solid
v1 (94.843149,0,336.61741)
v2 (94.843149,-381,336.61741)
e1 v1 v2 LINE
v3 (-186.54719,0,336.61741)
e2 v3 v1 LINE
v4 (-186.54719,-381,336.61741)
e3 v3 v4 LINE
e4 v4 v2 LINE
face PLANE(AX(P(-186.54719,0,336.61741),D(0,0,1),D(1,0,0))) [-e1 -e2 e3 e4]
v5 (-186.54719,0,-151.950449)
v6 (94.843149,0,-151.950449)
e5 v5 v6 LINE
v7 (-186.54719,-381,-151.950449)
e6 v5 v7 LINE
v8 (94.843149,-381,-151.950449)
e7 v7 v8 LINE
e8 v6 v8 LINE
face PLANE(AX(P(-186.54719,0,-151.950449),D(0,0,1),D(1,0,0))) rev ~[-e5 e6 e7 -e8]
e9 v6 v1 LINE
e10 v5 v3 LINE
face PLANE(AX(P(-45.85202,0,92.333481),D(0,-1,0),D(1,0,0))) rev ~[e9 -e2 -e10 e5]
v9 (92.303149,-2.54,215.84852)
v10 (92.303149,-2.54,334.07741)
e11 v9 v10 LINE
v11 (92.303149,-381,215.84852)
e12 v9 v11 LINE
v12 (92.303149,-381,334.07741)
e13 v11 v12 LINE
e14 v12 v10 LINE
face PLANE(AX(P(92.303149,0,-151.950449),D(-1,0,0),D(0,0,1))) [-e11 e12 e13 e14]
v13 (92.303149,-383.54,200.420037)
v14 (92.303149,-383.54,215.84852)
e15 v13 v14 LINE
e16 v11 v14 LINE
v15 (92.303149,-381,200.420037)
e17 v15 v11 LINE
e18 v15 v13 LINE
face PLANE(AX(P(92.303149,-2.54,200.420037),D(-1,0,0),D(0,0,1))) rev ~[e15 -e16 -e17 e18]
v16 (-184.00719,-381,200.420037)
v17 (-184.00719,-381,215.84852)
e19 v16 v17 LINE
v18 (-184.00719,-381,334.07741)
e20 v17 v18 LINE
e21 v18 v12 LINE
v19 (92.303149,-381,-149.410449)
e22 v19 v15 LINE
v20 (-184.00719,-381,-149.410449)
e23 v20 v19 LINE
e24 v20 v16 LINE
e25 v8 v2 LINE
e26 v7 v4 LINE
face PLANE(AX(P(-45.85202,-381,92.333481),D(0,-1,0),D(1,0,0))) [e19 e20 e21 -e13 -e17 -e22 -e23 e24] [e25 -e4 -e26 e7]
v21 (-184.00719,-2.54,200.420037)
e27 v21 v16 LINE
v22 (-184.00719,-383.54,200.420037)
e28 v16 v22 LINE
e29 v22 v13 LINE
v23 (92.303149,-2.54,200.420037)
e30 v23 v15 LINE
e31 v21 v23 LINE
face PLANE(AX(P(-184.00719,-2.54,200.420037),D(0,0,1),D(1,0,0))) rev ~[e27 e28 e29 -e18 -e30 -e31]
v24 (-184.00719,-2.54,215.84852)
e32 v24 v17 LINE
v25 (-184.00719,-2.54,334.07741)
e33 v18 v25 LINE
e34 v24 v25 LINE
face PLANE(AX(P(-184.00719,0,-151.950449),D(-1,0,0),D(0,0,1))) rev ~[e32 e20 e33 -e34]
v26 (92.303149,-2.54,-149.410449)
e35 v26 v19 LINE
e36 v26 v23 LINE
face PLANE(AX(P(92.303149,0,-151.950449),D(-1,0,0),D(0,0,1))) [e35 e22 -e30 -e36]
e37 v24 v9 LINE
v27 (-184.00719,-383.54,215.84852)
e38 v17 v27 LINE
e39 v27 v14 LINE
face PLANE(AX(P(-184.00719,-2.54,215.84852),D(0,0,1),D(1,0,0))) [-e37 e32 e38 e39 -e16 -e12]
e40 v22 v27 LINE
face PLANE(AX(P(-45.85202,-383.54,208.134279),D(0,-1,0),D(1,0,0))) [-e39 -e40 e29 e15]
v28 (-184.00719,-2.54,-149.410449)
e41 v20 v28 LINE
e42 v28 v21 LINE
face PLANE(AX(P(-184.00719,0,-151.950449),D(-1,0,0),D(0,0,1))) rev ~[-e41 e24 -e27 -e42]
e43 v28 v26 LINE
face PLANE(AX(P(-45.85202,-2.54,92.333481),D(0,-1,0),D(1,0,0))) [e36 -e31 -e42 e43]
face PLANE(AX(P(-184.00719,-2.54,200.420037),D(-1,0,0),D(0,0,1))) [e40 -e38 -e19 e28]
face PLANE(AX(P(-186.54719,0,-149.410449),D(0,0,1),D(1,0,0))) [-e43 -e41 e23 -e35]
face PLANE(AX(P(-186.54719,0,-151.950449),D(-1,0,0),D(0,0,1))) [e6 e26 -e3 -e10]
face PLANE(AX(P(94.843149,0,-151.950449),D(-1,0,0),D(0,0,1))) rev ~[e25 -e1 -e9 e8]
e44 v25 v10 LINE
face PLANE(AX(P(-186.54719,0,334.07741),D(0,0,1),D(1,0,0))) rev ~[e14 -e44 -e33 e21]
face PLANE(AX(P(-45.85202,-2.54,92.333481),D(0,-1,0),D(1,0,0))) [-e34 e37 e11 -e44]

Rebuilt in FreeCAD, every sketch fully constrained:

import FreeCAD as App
import Part
import Sketcher
from FreeCAD import Vector
Q = App.Units.Quantity


def faces_at(feature, points):
    """Names of the faces that lie closest to the given points."""
    faces = feature.Shape.Faces
    near = lambda p: min(range(len(faces)), key=lambda i: faces[i].distToShape(Part.Vertex(*p))[0])
    return sorted({f"Face{near(p) + 1}" for p in points})


def add_polygon(sketch, points):
    """Adds a closed chain of lines whose ends are joined by coincident constraints."""
    first, n = sketch.GeometryCount, len(points)
    for a, b in zip(points, points[1:] + points[:1]):
        sketch.addGeometry(Part.LineSegment(App.Vector(*a, 0), App.Vector(*b, 0)), False)
    for i in range(n):
        sketch.addConstraint(Sketcher.Constraint("Coincident", first + i, 2, first + (i + 1) % n, 1))

doc = App.newDocument("Part")
body = doc.addObject("PartDesign::Body", "Body")

# Sketch on XZ plane
sketch1 = body.newObject("Sketcher::SketchObject", "Sketch")
sketch1.AttachmentSupport = (doc.getObject("XZ_Plane"), [""])
sketch1.MapMode = "FlatFace"
add_polygon(sketch1, [(-187, 337), (-187, -152), (95, -152), (95, 337)])  # lines 0-3
sketch1.addConstraint([
    Sketcher.Constraint("Vertical", 0),
    Sketcher.Constraint("Horizontal", 1),
    Sketcher.Constraint("Vertical", 2),
    Sketcher.Constraint("Horizontal", 3),
    Sketcher.Constraint("DistanceX", 1, 1, 1, 2, 281.390339),
    Sketcher.Constraint("DistanceY", 0, 2, 0, 1, 488.567859),
    Sketcher.Constraint("DistanceX", 0, 2, -1, 1, 186.54719),
    Sketcher.Constraint("DistanceY", 0, 2, -1, 1, 151.950449),
])
pad1 = body.newObject("PartDesign::Pad", "Pad")
pad1.Profile = sketch1
pad1.Length = Q("15 in")
doc.recompute()

thickness = body.newObject("PartDesign::Thickness", "Thickness")
thickness.Base = (pad1, faces_at(pad1, [(-45.852, -381, 92.333)]))
thickness.Value = Q("0.1 in")
thickness.Reversed = True
thickness.Join = "Arc"

# Sketch on XZ plane
sketch2 = body.newObject("Sketcher::SketchObject", "Sketch001")
sketch2.AttachmentSupport = (doc.getObject("XZ_Plane"), [""])
sketch2.MapMode = "FlatFace"
sketch2.AttachmentOffset = App.Placement(Vector(0, 0, 0.1 * 25.4), App.Rotation())
add_polygon(sketch2, [(-184, 216), (-184, 200), (92, 200), (92, 216)])  # lines 0-3
sketch2.addConstraint([
    Sketcher.Constraint("Vertical", 0),
    Sketcher.Constraint("Horizontal", 1),
    Sketcher.Constraint("Vertical", 2),
    Sketcher.Constraint("Horizontal", 3),
    Sketcher.Constraint("DistanceX", 1, 1, 1, 2, 276.310339),
    Sketcher.Constraint("DistanceY", 0, 2, 0, 1, 15.428483),
    Sketcher.Constraint("DistanceX", 0, 2, -1, 1, 184.00719),
    Sketcher.Constraint("DistanceY", -1, 1, 2, 2, 215.84852),
])
pad2 = body.newObject("PartDesign::Pad", "Pad001")
pad2.Profile = sketch2
pad2.Length = Q("15 in")

doc.recompute()
